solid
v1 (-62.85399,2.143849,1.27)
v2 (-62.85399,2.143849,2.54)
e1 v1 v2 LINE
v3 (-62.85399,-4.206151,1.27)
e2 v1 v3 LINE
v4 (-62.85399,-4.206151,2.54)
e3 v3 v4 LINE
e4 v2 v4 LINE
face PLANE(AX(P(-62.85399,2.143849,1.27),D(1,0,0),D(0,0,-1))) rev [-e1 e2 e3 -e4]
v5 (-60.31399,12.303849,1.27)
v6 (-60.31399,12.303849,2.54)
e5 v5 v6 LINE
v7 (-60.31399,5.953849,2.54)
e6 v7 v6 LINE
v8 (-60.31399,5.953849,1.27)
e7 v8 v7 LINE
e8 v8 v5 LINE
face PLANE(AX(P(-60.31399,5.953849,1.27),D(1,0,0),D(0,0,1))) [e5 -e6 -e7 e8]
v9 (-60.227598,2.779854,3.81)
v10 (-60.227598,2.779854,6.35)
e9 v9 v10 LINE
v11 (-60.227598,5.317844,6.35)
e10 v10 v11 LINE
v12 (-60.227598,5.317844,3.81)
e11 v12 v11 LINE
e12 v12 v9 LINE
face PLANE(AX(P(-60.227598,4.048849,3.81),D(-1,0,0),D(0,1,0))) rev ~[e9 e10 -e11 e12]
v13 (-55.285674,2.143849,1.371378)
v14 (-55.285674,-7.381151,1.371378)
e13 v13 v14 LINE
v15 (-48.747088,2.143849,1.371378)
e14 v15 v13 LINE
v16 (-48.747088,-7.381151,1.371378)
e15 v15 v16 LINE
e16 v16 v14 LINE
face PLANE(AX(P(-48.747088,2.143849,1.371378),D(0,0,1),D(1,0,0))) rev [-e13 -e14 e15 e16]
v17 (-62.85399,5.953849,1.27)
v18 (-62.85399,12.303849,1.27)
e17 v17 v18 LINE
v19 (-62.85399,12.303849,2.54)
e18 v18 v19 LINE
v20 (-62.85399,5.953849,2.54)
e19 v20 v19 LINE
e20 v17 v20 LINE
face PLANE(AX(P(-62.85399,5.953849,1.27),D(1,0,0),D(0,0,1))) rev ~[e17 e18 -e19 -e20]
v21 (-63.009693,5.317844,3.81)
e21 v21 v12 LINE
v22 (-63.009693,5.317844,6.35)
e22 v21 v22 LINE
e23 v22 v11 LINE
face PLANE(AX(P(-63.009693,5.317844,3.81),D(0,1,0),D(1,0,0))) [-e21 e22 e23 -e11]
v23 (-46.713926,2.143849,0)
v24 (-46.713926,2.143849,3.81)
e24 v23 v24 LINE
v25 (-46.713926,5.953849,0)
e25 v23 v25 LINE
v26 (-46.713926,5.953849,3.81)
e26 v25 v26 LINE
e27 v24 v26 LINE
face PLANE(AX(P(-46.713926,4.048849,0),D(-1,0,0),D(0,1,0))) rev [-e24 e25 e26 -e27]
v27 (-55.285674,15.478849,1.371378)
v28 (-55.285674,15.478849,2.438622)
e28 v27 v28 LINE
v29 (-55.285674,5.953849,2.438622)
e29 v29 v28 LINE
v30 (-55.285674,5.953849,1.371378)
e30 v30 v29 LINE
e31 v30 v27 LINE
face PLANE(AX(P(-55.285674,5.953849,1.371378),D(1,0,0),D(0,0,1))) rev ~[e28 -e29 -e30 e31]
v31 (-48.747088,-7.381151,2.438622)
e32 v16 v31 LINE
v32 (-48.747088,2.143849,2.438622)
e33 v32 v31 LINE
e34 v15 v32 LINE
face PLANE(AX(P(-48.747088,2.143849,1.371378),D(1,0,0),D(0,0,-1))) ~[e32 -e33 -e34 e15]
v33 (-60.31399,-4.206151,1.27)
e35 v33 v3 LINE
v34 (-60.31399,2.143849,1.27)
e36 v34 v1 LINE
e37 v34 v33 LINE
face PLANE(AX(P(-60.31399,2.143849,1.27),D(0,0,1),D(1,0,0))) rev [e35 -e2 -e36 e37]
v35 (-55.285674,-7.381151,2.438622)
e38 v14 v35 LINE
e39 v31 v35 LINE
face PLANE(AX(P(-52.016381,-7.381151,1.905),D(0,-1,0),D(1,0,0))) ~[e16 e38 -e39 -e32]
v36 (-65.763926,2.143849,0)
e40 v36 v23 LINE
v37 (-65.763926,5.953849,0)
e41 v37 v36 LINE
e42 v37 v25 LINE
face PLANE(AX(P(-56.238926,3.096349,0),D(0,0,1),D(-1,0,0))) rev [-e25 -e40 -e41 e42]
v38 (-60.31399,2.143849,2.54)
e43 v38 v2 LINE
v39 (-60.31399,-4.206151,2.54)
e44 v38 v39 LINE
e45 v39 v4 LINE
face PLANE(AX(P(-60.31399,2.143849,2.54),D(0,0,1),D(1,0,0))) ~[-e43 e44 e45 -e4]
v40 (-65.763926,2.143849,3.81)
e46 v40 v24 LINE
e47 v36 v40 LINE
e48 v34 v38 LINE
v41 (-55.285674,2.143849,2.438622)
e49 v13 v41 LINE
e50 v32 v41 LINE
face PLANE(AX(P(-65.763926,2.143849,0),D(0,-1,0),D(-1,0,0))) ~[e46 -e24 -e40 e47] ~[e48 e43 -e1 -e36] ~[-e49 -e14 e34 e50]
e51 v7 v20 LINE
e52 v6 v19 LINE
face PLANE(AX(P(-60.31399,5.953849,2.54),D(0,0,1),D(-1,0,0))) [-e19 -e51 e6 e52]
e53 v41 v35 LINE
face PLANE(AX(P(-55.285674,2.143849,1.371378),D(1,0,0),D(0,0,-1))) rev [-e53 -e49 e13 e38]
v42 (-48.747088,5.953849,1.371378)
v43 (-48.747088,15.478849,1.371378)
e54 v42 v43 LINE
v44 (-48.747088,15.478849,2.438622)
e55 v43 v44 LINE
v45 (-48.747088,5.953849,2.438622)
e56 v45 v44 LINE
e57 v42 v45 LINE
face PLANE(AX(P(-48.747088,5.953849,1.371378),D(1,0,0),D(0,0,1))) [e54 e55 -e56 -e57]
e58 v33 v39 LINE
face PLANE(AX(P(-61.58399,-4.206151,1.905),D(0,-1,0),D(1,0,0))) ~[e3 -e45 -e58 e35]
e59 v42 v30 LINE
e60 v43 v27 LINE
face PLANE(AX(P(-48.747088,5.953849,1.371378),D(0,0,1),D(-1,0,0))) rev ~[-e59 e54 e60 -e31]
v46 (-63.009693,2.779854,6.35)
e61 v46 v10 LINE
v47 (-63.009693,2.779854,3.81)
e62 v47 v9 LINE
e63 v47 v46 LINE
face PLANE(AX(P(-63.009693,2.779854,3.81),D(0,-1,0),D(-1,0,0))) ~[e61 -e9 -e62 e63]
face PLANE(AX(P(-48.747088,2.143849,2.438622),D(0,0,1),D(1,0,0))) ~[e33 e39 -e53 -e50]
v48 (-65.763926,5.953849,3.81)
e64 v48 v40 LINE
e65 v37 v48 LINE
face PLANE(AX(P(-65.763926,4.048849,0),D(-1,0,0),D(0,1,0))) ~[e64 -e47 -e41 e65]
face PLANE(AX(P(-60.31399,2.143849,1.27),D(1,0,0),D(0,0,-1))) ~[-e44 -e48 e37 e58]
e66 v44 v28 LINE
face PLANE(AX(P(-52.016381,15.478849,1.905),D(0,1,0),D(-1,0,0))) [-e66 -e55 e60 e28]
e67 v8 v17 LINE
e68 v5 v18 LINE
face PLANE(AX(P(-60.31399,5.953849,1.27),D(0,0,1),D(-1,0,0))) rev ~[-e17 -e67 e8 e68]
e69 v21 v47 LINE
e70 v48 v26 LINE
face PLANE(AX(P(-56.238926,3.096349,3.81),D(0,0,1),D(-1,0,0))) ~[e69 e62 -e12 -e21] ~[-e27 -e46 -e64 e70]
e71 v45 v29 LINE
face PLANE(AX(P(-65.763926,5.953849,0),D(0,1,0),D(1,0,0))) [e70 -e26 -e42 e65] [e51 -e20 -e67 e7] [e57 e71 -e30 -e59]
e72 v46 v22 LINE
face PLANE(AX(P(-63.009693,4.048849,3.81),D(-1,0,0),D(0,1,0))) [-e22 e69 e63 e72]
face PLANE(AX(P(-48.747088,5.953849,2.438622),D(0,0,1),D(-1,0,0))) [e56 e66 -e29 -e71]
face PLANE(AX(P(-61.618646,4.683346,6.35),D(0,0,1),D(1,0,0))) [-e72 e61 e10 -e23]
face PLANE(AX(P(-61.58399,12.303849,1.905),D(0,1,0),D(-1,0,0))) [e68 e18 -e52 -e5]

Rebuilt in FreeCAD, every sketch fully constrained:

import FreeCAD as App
import Part
import Sketcher

V = App.Vector
Q = App.Units.Quantity


def add_polygon(sketch, points):
    """Adds a closed chain of lines whose ends are joined by coincident constraints."""
    first, n = sketch.GeometryCount, len(points)
    for a, b in zip(points, points[1:] + points[:1]):
        sketch.addGeometry(Part.LineSegment(App.Vector(*a, 0), App.Vector(*b, 0)), False)
    for i in range(n):
        sketch.addConstraint(Sketcher.Constraint("Coincident", first + i, 2, first + (i + 1) % n, 1))

doc = App.newDocument("Part")
body = doc.addObject("PartDesign::Body", "Body")

# Sketch on XY plane
sketch1 = doc.addObject("Sketcher::SketchObject", "Sketch")
body.addObject(sketch1)
sketch1.AttachmentSupport = (doc.XY_Plane, [""])
sketch1.MapMode = "FlatFace"
add_polygon(sketch1, [(-65.763926, 5.953849), (-65.763926, 4.048849), (-46.713926, 4.048849), (-46.713926, 5.953849)])  # lines 0-3
sketch1.addConstraint(Sketcher.Constraint("Vertical", 0))
sketch1.addConstraint(Sketcher.Constraint("Horizontal", 1))
sketch1.addConstraint(Sketcher.Constraint("Vertical", 2))
sketch1.addConstraint(Sketcher.Constraint("Horizontal", 3))
sketch1.addConstraint(Sketcher.Constraint("DistanceX", 1, 1, 1, 2, Q("0.75 in")))
sketch1.addConstraint(Sketcher.Constraint("DistanceY", 0, 2, 0, 1, Q("0.075 in")))
sketch1.addConstraint(Sketcher.Constraint("DistanceY", -1, 1, 0, 2, Q("4.048849 mm")))
sketch1.addConstraint(Sketcher.Constraint("DistanceX", 0, 2, -1, 1, Q("65.763926 mm")))
pad1 = doc.addObject("PartDesign::Pad", "Pad")
body.addObject(pad1)
pad1.Profile = sketch1
pad1.Length = Q("0.15 in")

# Sketch on XZ plane
sketch2 = doc.addObject("Sketcher::SketchObject", "Sketch001")
body.addObject(sketch2)
sketch2.AttachmentSupport = (doc.XZ_Plane, [""])
sketch2.MapMode = "FlatFace"
sketch2.AttachmentOffset = App.Placement(V(0, 0, -5.953849), App.Rotation())
add_polygon(sketch2, [(-48.747088, 2.438622), (-48.747088, 1.371378), (-55.285674, 1.371378), (-55.285674, 2.438622)])  # lines 0-3
sketch2.addConstraint(Sketcher.Constraint("Vertical", 0))
sketch2.addConstraint(Sketcher.Constraint("Horizontal", 1))
sketch2.addConstraint(Sketcher.Constraint("Vertical", 2))
sketch2.addConstraint(Sketcher.Constraint("Horizontal", 3))
sketch2.addConstraint(Sketcher.Constraint("DistanceX", 1, 2, 1, 1, Q("6.538586 mm")))
sketch2.addConstraint(Sketcher.Constraint("DistanceY", 0, 2, 0, 1, Q("1.067244 mm")))
sketch2.addConstraint(Sketcher.Constraint("DistanceX", 0, 2, -1, 1, Q("48.747088 mm")))
sketch2.addConstraint(Sketcher.Constraint("DistanceY", -1, 1, 0, 2, Q("1.371378 mm")))
pad2 = doc.addObject("PartDesign::Pad", "Pad001")
body.addObject(pad2)
pad2.Profile = sketch2
pad2.Length = Q("0.375 in")
pad2.Reversed = True

# Sketch on XZ plane
sketch3 = doc.addObject("Sketcher::SketchObject", "Sketch002")
body.addObject(sketch3)
sketch3.AttachmentSupport = (doc.XZ_Plane, [""])
sketch3.MapMode = "FlatFace"
sketch3.AttachmentOffset = App.Placement(V(0, 0, -5.953849), App.Rotation())
add_polygon(sketch3, [(-60.31399, 2.54), (-60.31399, 1.27), (-62.85399, 1.27), (-62.85399, 2.54)])  # lines 0-3
sketch3.addConstraint(Sketcher.Constraint("Vertical", 0))
sketch3.addConstraint(Sketcher.Constraint("Horizontal", 1))
sketch3.addConstraint(Sketcher.Constraint("Vertical", 2))
sketch3.addConstraint(Sketcher.Constraint("Horizontal", 3))
sketch3.addConstraint(Sketcher.Constraint("DistanceX", 1, 2, 1, 1, Q("0.1 in")))
sketch3.addConstraint(Sketcher.Constraint("DistanceY", 0, 2, 0, 1, Q("0.05 in")))
sketch3.addConstraint(Sketcher.Constraint("DistanceY", -1, 1, 2, 2, Q("0.1 in")))
sketch3.addConstraint(Sketcher.Constraint("DistanceX", 0, 2, -1, 1, Q("60.31399 mm")))
pad3 = doc.addObject("PartDesign::Pad", "Pad002")
body.addObject(pad3)
pad3.Profile = sketch3
pad3.Length = Q("0.25 in")
pad3.Reversed = True

# Sketch on XY plane
sketch4 = doc.addObject("Sketcher::SketchObject", "Sketch003")
body.addObject(sketch4)
sketch4.AttachmentSupport = (doc.XY_Plane, [""])
sketch4.MapMode = "FlatFace"
sketch4.AttachmentOffset = App.Placement(V(0, 0, 0.15 * 25.4), App.Rotation())
add_polygon(sketch4, [(-63.009693, 5.317844), (-63.009693, 4.048849), (-60.227598, 4.048849), (-60.227598, 5.317844)])  # lines 0-3
sketch4.addConstraint(Sketcher.Constraint("Vertical", 0))
sketch4.addConstraint(Sketcher.Constraint("Horizontal", 1))
sketch4.addConstraint(Sketcher.Constraint("Vertical", 2))
sketch4.addConstraint(Sketcher.Constraint("Horizontal", 3))
sketch4.addConstraint(Sketcher.Constraint("DistanceX", 1, 2, -1, 1, Q("60.227598 mm")))
sketch4.addConstraint(Sketcher.Constraint("DistanceX", 1, 1, 1, 2, Q("2.782095 mm")))
sketch4.addConstraint(Sketcher.Constraint("DistanceY", 0, 2, 0, 1, Q("1.268995 mm")))
sketch4.addConstraint(Sketcher.Constraint("DistanceY", -1, 1, 0, 2, Q("4.048849 mm")))
pad4 = doc.addObject("PartDesign::Pad", "Pad003")
body.addObject(pad4)
pad4.Profile = sketch4
pad4.Length = Q("0.1 in")
body2 = doc.addObject("PartDesign::Body", "Body001")
doc.recompute()

body2.BaseFeature = body
doc.recompute()

mirroring = doc.addObject("Part::Mirroring", "Mirroring")
mirroring.Source = body
mirroring.Base = V(-56.716231, 4.048849, 2.186695)
mirroring.Normal = V(0, -1, 0)
body3 = doc.addObject("PartDesign::Body", "Body002")
body3.BaseFeature = mirroring
boolean = doc.addObject("PartDesign::Boolean", "Boolean")
body2.addObject(boolean)
boolean.Type = "Fuse"
boolean.addObjects([body3])
doc.recompute()
mirroring.Visibility = False

doc.recompute()
